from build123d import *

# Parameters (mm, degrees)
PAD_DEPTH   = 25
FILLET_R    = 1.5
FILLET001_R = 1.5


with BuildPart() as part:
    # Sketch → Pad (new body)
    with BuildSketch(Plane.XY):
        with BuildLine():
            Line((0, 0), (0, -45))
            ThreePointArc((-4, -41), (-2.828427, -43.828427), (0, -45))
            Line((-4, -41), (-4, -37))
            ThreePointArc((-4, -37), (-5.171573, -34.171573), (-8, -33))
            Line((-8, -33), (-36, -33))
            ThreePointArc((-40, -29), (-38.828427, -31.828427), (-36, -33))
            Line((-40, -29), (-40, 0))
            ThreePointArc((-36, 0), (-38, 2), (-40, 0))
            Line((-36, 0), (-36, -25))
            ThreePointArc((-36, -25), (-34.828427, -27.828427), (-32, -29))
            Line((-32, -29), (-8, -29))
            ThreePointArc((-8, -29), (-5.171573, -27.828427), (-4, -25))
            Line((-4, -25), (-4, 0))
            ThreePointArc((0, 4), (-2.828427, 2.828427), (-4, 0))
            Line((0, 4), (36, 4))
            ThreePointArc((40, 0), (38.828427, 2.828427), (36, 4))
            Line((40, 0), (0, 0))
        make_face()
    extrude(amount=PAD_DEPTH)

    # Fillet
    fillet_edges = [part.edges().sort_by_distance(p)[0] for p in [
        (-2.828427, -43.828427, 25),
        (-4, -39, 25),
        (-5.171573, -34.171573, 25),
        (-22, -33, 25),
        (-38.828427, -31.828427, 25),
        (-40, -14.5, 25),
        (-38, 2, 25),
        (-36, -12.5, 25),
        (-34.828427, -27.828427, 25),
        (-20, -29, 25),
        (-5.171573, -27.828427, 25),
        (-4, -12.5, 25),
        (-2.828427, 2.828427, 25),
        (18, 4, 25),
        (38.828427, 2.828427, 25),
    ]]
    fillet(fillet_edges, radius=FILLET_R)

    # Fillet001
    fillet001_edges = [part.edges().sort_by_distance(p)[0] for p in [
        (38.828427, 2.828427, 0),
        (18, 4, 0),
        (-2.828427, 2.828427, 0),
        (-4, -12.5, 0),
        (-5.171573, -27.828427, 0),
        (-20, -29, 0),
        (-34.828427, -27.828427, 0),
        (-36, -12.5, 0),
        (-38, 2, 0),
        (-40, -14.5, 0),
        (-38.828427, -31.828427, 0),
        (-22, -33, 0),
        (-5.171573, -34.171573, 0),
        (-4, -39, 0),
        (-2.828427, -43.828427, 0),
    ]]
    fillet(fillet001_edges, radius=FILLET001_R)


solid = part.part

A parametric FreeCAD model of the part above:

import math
import FreeCAD as App
import Part
import Sketcher
from FreeCAD import Vector
Q = App.Units.Quantity


def edges_at(feature, points):
    """Names of the edges that pass closest to the given points."""
    edges = feature.Shape.Edges
    near = lambda p: min(range(len(edges)), key=lambda i: edges[i].distToShape(Part.Vertex(*p))[0])
    return sorted({f"Edge{near(p) + 1}" for p in points})

doc = App.newDocument("Part")
body = doc.addObject("PartDesign::Body", "Body")

sketch1 = doc.addObject("Sketcher::SketchObject", "Sketch")
body.addObject(sketch1)
sketch1.AttachmentSupport = (doc.XY_Plane, [""])
sketch1.MapMode = "FlatFace"
sketch1.addGeometry([
    Part.LineSegment(Vector(0, -45, 0), Vector(0, 0, 0)),
    Part.LineSegment(Vector(0, 0, 0), Vector(40, 0, 0)),
    Part.ArcOfCircle(Part.Circle(Vector(36, 0, 0), Vector(0, 0, 1), 4), math.radians(0.000006), math.radians(89.999994)),
    Part.LineSegment(Vector(36, 4, 0), Vector(0, 4, 0)),
    Part.ArcOfCircle(Part.Circle(Vector(0, 0, 0), Vector(0, 0, 1), 4), math.radians(90.000006), math.radians(179.999994)),
    Part.LineSegment(Vector(-4, 0, 0), Vector(-4, -25, 0)),
    Part.ArcOfCircle(Part.Circle(Vector(-8, -25, 0), Vector(0, 0, 1), 4), math.radians(-89.999994), math.radians(-0.000006)),
    Part.LineSegment(Vector(-8, -29, 0), Vector(-32, -29, 0)),
    Part.ArcOfCircle(Part.Circle(Vector(-32, -25, 0), Vector(0, 0, 1), 4), math.radians(-179.999994), math.radians(-90.000006)),
    Part.LineSegment(Vector(-36, -25, 0), Vector(-36, 0, 0)),
    Part.ArcOfCircle(Part.Circle(Vector(-38, 0, 0), Vector(0, 0, 1), 2), math.radians(0), math.radians(180)),
    Part.LineSegment(Vector(-40, 0, 0), Vector(-40, -29, 0)),
    Part.ArcOfCircle(Part.Circle(Vector(-36, -29, 0), Vector(0, 0, 1), 4), math.radians(-179.999994), math.radians(-90.000006)),
    Part.LineSegment(Vector(-36, -33, 0), Vector(-8, -33, 0)),
    Part.ArcOfCircle(Part.Circle(Vector(-8, -37, 0), Vector(0, 0, 1), 4), math.radians(0.000006), math.radians(89.999994)),
    Part.LineSegment(Vector(-4, -37, 0), Vector(-4, -41, 0)),
    Part.ArcOfCircle(Part.Circle(Vector(0, -41, 0), Vector(0, 0, 1), 4), math.radians(-179.999994), math.radians(-90.000006)),
], False)
sketch1.addConstraint([
    Sketcher.Constraint("Coincident", 0, 2, 1, 1),
    Sketcher.Constraint("Coincident", 1, 2, 2, 1),
    Sketcher.Constraint("Tangent", 2, 2, 3, 1),
    Sketcher.Constraint("Tangent", 3, 2, 4, 1),
    Sketcher.Constraint("Tangent", 4, 2, 5, 1),
    Sketcher.Constraint("Tangent", 5, 2, 6, 2),
    Sketcher.Constraint("Tangent", 6, 1, 7, 1),
    Sketcher.Constraint("Tangent", 7, 2, 8, 2),
    Sketcher.Constraint("Tangent", 8, 1, 9, 1),
    Sketcher.Constraint("Tangent", 9, 2, 10, 1),
    Sketcher.Constraint("Tangent", 10, 2, 11, 1),
    Sketcher.Constraint("Tangent", 11, 2, 12, 1),
    Sketcher.Constraint("Tangent", 12, 2, 13, 1),
    Sketcher.Constraint("Tangent", 13, 2, 14, 2),
    Sketcher.Constraint("Tangent", 14, 1, 15, 1),
    Sketcher.Constraint("Tangent", 15, 2, 16, 1),
    Sketcher.Constraint("Coincident", 16, 2, 0, 1),
    Sketcher.Constraint("Vertical", 0),
    Sketcher.Constraint("Horizontal", 1),
    Sketcher.Constraint("Horizontal", 3),
    Sketcher.Constraint("Vertical", 5),
    Sketcher.Constraint("Horizontal", 7),
    Sketcher.Constraint("Vertical", 9),
    Sketcher.Constraint("Vertical", 11),
    Sketcher.Constraint("Horizontal", 13),
    Sketcher.Constraint("Vertical", 15),
    Sketcher.Constraint("Coincident", 4, 3, -1, 1),
    Sketcher.Constraint("Coincident", 0, 2, -1, 1),
    Sketcher.Constraint("Equal", 2, 4),
    Sketcher.Constraint("Equal", 4, 6),
    Sketcher.Constraint("Equal", 6, 8),
    Sketcher.Constraint("Equal", 8, 12),
    Sketcher.Constraint("Equal", 12, 14),
    Sketcher.Constraint("Equal", 14, 16),
    Sketcher.Constraint("Symmetric", 1, 2, 10, 2, -1, 1),
    Sketcher.Constraint("PointOnObject", 16, 3, -2),
    Sketcher.Constraint("Horizontal", 12, 3, 6, 1),
    Sketcher.Constraint("Vertical", 12, 3, 8, 1),
    Sketcher.Constraint("Radius", 2, Q("4 mm")),
    Sketcher.Constraint("DistanceX", 1, 1, 1, 2, Q("40 mm")),
    Sketcher.Constraint("DistanceY", 0, 1, 0, 2, Q("45 mm")),
    Sketcher.Constraint("DistanceY", 5, 2, 5, 1, Q("25 mm")),
])
pad1 = doc.addObject("PartDesign::Pad", "Pad")
body.addObject(pad1)
pad1.Profile = sketch1
pad1.Length = 25
doc.recompute()

fillet = doc.addObject("PartDesign::Fillet", "Fillet")
body.addObject(fillet)
fillet.Base = (pad1, edges_at(pad1, [
    (-2.828, -43.828, 25),
    (-4, -39, 25),
    (-5.172, -34.172, 25),
    (-22, -33, 25),
    (-38.828, -31.828, 25),
    (-40, -14.5, 25),
    (-38, 2, 25),
    (-36, -12.5, 25),
    (-34.828, -27.828, 25),
    (-20, -29, 25),
    (-5.172, -27.828, 25),
    (-4, -12.5, 25),
    (-2.828, 2.828, 25),
    (18, 4, 25),
    (38.828, 2.828, 25),
]))
fillet.Radius = 1.5
doc.recompute()

fillet2 = doc.addObject("PartDesign::Fillet", "Fillet001")
body.addObject(fillet2)
fillet2.Base = (fillet, edges_at(fillet, [
    (38.828, 2.828, 0),
    (18, 4, 0),
    (-2.828, 2.828, 0),
    (-4, -12.5, 0),
    (-5.172, -27.828, 0),
    (-20, -29, 0),
    (-34.828, -27.828, 0),
    (-36, -12.5, 0),
    (-38, 2, 0),
    (-40, -14.5, 0),
    (-38.828, -31.828, 0),
    (-22, -33, 0),
    (-5.172, -34.172, 0),
    (-4, -39, 0),
    (-2.828, -43.828, 0),
]))
fillet2.Radius = 1.5

doc.recompute()
